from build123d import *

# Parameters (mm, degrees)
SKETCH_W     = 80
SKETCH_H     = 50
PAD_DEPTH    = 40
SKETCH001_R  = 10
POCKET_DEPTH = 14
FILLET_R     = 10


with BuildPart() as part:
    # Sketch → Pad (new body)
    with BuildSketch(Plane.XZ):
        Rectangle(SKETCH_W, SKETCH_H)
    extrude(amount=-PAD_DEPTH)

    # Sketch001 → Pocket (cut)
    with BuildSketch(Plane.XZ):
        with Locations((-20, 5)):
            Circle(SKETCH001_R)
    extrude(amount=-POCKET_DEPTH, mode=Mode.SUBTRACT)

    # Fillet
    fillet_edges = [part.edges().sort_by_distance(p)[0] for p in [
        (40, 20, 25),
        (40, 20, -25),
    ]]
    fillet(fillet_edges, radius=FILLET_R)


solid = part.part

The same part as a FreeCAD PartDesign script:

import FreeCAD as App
import Part
import Sketcher

V = App.Vector


def edges_at(feature, points):
    """Names of the edges that pass closest to the given points."""
    edges = feature.Shape.Edges
    near = lambda p: min(range(len(edges)), key=lambda i: edges[i].distToShape(Part.Vertex(*p))[0])
    return sorted({f"Edge{near(p) + 1}" for p in points})


def add_polygon(sketch, points):
    """Adds a closed chain of lines whose ends are joined by coincident constraints."""
    first, n = sketch.GeometryCount, len(points)
    for a, b in zip(points, points[1:] + points[:1]):
        sketch.addGeometry(Part.LineSegment(App.Vector(*a, 0), App.Vector(*b, 0)), False)
    for i in range(n):
        sketch.addConstraint(Sketcher.Constraint("Coincident", first + i, 2, first + (i + 1) % n, 1))

doc = App.newDocument("Part")
body = doc.addObject("PartDesign::Body", "Body")

# Sketch on XZ plane
sketch1 = body.newObject("Sketcher::SketchObject", "Sketch")
sketch1.AttachmentSupport = (doc.getObject("XZ_Plane"), [""])
sketch1.MapMode = "FlatFace"
add_polygon(sketch1, [(-40, 25), (-40, -25), (40, -25), (40, 25)])  # lines 0-3
sketch1.addConstraint(Sketcher.Constraint("Vertical", 0))
sketch1.addConstraint(Sketcher.Constraint("Horizontal", 1))
sketch1.addConstraint(Sketcher.Constraint("Vertical", 2))
sketch1.addConstraint(Sketcher.Constraint("Horizontal", 3))
sketch1.addConstraint(Sketcher.Constraint("Symmetric", 0, 2, 2, 2, -1, 1))
sketch1.addConstraint(Sketcher.Constraint("DistanceX", 1, 1, 1, 2, 80.0))
sketch1.addConstraint(Sketcher.Constraint("DistanceY", 0, 2, 0, 1, 50.0))
pad1 = body.newObject("PartDesign::Pad", "Pad")
pad1.Profile = sketch1
pad1.Length = 40
pad1.Reversed = True

# Sketch on XZ plane
sketch2 = body.newObject("Sketcher::SketchObject", "Sketch001")
sketch2.AttachmentSupport = (doc.getObject("XZ_Plane"), [""])
sketch2.MapMode = "FlatFace"
sketch2.addGeometry(Part.Circle(V(-20, 5, 0), V(0, 0, 1), 10), False)
sketch2.addConstraint(Sketcher.Constraint("Diameter", 0, 20.0))
sketch2.addConstraint(Sketcher.Constraint("DistanceX", 0, 3, -1, 1, 20.0))
sketch2.addConstraint(Sketcher.Constraint("DistanceY", -1, 1, 0, 3, 5.0))
pocket1 = body.newObject("PartDesign::Pocket", "Pocket")
pocket1.Profile = sketch2
pocket1.Length = 14
doc.recompute()

fillet = body.newObject("PartDesign::Fillet", "Fillet")
fillet.Base = (pocket1, edges_at(pocket1, [(40, 20, 25), (40, 20, -25)]))
fillet.Radius = 10

doc.recompute()
